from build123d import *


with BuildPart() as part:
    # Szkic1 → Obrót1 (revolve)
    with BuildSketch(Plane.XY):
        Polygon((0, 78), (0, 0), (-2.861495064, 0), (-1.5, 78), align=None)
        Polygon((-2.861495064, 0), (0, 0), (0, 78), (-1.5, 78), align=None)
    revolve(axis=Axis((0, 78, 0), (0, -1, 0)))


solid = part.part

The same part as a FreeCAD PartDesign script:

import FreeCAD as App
import Part
import Sketcher
from FreeCAD import Vector
Q = App.Units.Quantity

doc = App.newDocument("Part")
params = doc.addObject("Spreadsheet::Sheet", "Params")
for row, (alias, value) in enumerate([
    ("sketch1_height", "78 mm"),
    ("sketch1_width", "1.5 mm"),
    ("revolution_angle", "360 deg"),
], start=1):
    params.set(f"A{row}", alias)
    params.set(f"B{row}", "=" + value)
    params.setAlias(f"B{row}", alias)

body = doc.addObject("PartDesign::Body", "Body")

# Sketch on XY plane
sketch1 = doc.addObject("Sketcher::SketchObject", "Sketch")
body.addObject(sketch1)
sketch1.AttachmentSupport = (doc.XY_Plane, [""])
sketch1.MapMode = "FlatFace"
sketch1.addGeometry(Part.LineSegment(Vector(0, 0, 0), Vector(0, 78, 0)), False)
sketch1.addGeometry(Part.LineSegment(Vector(0, 78, 0), Vector(-1.5, 78, 0)), False)
sketch1.addGeometry(Part.LineSegment(Vector(-1.5, 78, 0), Vector(-2.861495, 0, 0)), False)
sketch1.addGeometry(Part.LineSegment(Vector(-2.861495, 0, 0), Vector(0, 0, 0)), False)
sketch1.addConstraint(Sketcher.Constraint("Coincident", 0, 2, 1, 1))
sketch1.addConstraint(Sketcher.Constraint("Coincident", 1, 2, 2, 1))
sketch1.addConstraint(Sketcher.Constraint("Coincident", 2, 2, 3, 1))
sketch1.addConstraint(Sketcher.Constraint("Coincident", 3, 2, 0, 1))
sketch1.addConstraint(Sketcher.Constraint("Vertical", 0))
sketch1.addConstraint(Sketcher.Constraint("Horizontal", 1))
sketch1.addConstraint(Sketcher.Constraint("Horizontal", 3))
sketch1.addConstraint(Sketcher.Constraint("Coincident", 3, 2, -1, 1))
sketch1.addConstraint(Sketcher.Constraint("DistanceY", 0, 1, 0, 2, 78.0))
sketch1.addConstraint(Sketcher.Constraint("Angle", 2, Q("-91 deg")))
sketch1.addConstraint(Sketcher.Constraint("DistanceX", 1, 2, 1, 1, 1.5))
sketch1.setExpression("Constraints[8]", "Params.sketch1_height")
sketch1.setExpression("Constraints[10]", "Params.sketch1_width")
revolution = doc.addObject("PartDesign::Revolution", "Revolution")
body.addObject(revolution)
revolution.Profile = sketch1
revolution.ReferenceAxis = (sketch1, ["V_Axis"])
revolution.setExpression("Angle", "Params.revolution_angle")

doc.recompute()
